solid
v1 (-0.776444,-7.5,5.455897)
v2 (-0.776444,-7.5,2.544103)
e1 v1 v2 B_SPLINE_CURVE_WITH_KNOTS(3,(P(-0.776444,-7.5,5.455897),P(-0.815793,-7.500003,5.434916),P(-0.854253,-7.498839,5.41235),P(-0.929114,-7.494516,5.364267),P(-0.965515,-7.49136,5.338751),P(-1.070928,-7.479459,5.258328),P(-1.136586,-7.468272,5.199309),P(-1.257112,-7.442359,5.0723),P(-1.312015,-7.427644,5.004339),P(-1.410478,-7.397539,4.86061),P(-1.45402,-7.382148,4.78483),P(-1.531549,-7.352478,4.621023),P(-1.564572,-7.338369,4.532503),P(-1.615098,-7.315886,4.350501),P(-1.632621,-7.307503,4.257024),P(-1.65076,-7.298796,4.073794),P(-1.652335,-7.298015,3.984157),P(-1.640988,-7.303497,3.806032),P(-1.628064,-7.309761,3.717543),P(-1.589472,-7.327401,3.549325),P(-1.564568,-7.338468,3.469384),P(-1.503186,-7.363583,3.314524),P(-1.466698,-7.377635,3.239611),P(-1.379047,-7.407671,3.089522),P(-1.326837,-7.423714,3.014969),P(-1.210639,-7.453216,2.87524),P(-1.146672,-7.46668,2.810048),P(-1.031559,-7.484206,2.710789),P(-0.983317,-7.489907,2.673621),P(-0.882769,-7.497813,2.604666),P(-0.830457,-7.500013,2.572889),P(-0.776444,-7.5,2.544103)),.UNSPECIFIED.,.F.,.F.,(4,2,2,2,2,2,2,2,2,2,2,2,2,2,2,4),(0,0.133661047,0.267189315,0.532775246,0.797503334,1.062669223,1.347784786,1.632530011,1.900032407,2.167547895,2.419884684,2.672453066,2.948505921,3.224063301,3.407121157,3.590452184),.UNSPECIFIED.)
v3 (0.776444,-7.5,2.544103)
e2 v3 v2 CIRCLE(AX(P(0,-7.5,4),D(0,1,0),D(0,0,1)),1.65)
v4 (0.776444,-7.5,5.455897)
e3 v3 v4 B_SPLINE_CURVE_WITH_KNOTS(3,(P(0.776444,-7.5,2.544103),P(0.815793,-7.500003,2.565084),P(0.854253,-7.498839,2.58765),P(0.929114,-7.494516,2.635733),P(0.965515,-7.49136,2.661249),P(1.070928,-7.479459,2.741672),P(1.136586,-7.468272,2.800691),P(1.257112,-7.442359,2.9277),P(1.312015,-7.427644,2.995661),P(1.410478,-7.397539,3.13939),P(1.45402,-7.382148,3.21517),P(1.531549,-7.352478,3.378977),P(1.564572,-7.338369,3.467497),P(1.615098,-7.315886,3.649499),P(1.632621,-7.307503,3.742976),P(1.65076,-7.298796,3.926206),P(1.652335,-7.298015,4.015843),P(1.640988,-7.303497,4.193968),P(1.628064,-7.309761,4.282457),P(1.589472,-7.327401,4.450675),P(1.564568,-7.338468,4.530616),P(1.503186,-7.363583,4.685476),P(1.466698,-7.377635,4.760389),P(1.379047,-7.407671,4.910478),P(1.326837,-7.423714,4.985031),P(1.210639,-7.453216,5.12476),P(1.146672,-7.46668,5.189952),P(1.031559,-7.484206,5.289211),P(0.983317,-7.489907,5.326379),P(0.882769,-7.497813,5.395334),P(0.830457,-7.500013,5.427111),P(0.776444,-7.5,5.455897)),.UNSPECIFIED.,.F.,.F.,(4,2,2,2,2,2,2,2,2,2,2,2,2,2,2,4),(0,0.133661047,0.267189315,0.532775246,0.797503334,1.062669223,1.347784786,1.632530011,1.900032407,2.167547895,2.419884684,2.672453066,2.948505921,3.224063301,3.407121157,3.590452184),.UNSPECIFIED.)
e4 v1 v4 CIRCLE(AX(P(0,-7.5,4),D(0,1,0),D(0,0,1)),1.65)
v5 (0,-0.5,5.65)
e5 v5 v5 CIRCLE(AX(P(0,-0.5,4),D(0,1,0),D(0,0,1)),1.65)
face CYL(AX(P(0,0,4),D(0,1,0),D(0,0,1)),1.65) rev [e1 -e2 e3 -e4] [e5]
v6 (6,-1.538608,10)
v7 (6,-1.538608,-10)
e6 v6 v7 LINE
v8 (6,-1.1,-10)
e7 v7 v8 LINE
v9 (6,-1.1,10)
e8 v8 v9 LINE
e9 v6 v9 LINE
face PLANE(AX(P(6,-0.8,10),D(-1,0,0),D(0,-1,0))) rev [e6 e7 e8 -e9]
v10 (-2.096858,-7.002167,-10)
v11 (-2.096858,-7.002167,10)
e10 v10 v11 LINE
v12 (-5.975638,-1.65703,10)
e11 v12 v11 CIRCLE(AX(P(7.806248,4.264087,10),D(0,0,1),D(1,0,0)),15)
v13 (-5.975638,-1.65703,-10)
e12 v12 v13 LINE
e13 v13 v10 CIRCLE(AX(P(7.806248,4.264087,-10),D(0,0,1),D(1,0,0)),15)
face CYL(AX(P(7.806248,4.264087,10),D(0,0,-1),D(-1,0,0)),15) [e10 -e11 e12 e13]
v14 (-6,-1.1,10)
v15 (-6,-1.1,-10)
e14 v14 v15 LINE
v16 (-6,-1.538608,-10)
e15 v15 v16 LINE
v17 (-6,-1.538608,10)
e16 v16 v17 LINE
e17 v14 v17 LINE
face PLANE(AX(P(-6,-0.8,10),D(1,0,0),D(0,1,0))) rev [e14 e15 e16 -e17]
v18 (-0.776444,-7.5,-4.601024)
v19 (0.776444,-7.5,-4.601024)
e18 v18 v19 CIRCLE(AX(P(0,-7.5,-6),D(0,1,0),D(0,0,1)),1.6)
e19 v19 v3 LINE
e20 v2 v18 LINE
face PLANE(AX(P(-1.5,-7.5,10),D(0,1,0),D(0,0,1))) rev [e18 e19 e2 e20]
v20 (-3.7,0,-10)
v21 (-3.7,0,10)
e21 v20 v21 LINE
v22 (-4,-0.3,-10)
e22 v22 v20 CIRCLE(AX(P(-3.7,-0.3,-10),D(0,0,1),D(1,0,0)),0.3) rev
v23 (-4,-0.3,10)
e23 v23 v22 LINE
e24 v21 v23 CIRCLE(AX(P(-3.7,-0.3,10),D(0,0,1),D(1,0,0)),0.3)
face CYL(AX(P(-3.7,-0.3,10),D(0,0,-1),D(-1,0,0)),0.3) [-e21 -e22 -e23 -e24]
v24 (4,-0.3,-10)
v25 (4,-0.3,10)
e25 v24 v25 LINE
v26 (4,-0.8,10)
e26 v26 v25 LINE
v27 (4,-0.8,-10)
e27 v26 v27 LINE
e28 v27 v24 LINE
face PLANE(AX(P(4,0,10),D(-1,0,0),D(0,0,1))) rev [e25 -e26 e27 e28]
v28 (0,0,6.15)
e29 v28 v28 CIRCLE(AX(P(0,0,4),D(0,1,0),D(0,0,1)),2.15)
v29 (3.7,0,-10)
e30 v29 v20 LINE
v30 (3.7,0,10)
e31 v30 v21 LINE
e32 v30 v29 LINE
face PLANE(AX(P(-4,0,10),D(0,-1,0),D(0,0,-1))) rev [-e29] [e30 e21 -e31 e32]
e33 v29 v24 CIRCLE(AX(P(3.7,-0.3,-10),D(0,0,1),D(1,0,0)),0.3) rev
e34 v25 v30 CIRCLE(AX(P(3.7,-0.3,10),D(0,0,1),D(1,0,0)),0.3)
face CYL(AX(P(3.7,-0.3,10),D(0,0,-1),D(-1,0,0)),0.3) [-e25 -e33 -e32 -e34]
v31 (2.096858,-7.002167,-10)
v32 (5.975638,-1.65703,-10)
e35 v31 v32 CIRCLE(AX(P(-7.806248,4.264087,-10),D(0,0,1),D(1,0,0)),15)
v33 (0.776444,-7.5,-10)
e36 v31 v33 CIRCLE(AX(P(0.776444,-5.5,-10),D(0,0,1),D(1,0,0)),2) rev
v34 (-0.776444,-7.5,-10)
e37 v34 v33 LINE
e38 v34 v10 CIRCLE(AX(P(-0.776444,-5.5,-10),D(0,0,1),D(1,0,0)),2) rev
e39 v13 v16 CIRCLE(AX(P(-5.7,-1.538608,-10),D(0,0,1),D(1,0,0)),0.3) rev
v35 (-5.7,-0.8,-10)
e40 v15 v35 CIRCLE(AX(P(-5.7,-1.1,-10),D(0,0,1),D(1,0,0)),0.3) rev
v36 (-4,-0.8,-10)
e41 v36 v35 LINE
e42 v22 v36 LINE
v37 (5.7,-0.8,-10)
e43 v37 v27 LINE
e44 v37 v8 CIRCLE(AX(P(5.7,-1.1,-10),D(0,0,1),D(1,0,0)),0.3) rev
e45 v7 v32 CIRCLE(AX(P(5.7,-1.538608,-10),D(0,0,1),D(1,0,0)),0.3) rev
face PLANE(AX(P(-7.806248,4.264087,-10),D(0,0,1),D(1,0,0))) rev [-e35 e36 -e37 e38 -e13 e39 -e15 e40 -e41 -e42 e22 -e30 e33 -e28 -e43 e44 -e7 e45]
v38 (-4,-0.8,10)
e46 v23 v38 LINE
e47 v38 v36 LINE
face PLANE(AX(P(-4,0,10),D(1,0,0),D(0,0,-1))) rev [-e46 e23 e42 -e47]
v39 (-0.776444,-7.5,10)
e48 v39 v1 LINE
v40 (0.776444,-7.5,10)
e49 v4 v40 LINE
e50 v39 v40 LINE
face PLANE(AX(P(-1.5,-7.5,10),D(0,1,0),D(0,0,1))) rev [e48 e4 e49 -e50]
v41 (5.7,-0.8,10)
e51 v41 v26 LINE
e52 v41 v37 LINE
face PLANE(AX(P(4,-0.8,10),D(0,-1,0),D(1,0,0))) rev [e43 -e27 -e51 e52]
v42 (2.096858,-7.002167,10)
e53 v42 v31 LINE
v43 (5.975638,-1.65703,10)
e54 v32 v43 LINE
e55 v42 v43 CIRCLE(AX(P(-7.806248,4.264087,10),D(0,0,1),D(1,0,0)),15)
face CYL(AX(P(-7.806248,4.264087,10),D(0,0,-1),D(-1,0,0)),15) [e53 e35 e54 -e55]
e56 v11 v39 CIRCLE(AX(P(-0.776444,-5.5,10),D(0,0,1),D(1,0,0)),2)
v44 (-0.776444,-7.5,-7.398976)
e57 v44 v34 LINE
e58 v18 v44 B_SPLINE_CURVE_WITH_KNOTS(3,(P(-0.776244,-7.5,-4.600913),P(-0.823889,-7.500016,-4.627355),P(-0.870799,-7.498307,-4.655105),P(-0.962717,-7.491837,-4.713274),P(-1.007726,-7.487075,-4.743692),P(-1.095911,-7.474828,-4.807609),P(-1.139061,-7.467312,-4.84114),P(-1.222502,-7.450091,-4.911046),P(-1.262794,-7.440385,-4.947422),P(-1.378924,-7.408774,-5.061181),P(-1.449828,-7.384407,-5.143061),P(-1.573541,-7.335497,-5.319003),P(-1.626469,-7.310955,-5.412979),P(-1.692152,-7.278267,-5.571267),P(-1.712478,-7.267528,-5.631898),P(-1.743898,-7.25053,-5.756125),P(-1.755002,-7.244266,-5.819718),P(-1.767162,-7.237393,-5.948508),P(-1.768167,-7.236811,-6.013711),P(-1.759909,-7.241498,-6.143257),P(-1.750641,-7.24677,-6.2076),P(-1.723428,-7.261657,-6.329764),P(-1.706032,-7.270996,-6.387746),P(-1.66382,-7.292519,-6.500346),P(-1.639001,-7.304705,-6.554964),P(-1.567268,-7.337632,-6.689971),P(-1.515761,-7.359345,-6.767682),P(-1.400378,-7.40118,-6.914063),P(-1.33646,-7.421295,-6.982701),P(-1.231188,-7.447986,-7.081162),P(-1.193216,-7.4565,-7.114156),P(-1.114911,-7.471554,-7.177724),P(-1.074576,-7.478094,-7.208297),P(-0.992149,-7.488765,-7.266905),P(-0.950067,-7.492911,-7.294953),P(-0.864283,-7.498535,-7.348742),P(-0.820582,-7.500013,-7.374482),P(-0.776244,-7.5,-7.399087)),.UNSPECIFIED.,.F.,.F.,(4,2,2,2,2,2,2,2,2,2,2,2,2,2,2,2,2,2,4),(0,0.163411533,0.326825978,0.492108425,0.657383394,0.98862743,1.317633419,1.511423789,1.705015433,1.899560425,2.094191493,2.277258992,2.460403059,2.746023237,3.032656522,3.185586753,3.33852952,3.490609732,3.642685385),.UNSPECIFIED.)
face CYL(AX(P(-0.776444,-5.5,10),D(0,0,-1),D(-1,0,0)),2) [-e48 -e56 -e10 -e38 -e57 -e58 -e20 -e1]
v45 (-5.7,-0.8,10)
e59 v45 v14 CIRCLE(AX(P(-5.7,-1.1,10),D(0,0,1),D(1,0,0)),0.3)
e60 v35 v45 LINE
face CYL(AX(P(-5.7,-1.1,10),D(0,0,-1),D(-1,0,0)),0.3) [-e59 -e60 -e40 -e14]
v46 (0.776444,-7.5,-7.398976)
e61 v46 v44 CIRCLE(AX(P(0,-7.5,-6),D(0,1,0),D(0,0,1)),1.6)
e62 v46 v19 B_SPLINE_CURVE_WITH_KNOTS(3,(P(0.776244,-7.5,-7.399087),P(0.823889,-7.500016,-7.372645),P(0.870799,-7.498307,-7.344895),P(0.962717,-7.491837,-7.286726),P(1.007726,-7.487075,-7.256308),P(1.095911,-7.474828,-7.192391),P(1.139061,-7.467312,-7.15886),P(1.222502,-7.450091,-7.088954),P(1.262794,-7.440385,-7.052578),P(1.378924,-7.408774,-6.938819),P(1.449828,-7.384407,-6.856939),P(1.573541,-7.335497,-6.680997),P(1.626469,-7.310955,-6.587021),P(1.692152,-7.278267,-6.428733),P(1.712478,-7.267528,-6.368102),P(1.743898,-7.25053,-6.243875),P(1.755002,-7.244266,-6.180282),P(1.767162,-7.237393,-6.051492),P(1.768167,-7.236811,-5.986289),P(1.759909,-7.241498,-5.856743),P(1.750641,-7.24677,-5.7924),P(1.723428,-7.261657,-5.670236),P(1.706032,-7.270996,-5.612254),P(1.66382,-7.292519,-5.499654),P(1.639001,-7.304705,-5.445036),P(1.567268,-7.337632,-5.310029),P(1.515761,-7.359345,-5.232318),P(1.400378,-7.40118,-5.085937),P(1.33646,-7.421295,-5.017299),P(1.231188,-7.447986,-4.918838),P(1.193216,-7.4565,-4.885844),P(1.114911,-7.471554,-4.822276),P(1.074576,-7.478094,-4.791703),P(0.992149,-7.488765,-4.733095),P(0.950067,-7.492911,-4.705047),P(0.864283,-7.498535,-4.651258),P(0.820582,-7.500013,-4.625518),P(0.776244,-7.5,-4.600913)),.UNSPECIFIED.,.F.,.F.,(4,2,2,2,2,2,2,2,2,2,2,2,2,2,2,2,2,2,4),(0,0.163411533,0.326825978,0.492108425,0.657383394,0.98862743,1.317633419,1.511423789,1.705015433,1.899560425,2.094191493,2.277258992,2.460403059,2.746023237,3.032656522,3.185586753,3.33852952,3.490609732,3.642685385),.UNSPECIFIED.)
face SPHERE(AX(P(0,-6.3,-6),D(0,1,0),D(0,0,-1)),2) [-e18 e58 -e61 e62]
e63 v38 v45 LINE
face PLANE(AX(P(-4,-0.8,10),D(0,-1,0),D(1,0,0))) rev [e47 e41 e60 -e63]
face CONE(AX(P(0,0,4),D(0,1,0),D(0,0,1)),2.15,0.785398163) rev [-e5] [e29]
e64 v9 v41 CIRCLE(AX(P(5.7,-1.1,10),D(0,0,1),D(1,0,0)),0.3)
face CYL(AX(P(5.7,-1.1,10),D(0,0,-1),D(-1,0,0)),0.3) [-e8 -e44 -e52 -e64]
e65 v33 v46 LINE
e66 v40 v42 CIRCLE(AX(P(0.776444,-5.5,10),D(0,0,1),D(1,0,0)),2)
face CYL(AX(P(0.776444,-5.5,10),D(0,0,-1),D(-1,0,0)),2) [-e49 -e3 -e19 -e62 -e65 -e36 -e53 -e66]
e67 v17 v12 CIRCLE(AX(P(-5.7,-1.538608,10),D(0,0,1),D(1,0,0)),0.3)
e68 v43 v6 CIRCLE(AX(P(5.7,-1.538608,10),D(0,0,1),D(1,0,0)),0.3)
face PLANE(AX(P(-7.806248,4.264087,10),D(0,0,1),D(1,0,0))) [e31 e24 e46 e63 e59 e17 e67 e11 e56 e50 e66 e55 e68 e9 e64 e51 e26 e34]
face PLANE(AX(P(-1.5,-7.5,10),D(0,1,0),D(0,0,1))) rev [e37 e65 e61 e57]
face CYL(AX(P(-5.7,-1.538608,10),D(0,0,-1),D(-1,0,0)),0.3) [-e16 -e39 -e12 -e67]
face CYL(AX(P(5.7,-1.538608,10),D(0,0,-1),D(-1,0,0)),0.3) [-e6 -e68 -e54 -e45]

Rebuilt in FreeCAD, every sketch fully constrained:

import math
import FreeCAD as App
import Part
import Sketcher


def edges_at(feature, points):
    """Names of the edges that pass closest to the given points."""
    edges = feature.Shape.Edges
    near = lambda p: min(range(len(edges)), key=lambda i: edges[i].distToShape(Part.Vertex(*p))[0])
    return sorted({f"Edge{near(p) + 1}" for p in points})

doc = App.newDocument("Part")
body = doc.addObject("PartDesign::Body", "Body")

sketch1 = body.newObject("Sketcher::SketchObject", "Sketch")
sketch1.AttachmentSupport = (doc.getObject("XY_Plane"), [""])
sketch1.MapMode = "FlatFace"
sketch1.addGeometry([
    Part.LineSegment(App.Vector(4, 0, 0), App.Vector(-4, 0, 0)),
    Part.LineSegment(App.Vector(-4, 0, 0), App.Vector(-4, -0.8, 0)),
    Part.LineSegment(App.Vector(-4, -0.8, 0), App.Vector(-6, -0.8, 0)),
    Part.LineSegment(App.Vector(-6, -0.8, 0), App.Vector(-6, -1.6, 0)),
    Part.ArcOfCircle(Part.Circle(App.Vector(7.8, 4.3, 0), App.Vector(0, 0, 1), 15), math.radians(-157), math.radians(-128)),
    Part.LineSegment(App.Vector(-1.5, -7.5, 0), App.Vector(1.5, -7.5, 0)),
    Part.ArcOfCircle(Part.Circle(App.Vector(-7.8, 4.3, 0), App.Vector(0, 0, 1), 15), math.radians(-52), math.radians(-23)),
    Part.LineSegment(App.Vector(6, -1.6, 0), App.Vector(6, -0.8, 0)),
    Part.LineSegment(App.Vector(6, -0.8, 0), App.Vector(4, -0.8, 0)),
    Part.LineSegment(App.Vector(4, -0.8, 0), App.Vector(4, 0, 0)),
], False)
sketch1.addConstraint([
    Sketcher.Constraint("Coincident", 0, 2, 1, 1),
    Sketcher.Constraint("Coincident", 1, 2, 2, 1),
    Sketcher.Constraint("Coincident", 2, 2, 3, 1),
    Sketcher.Constraint("Coincident", 3, 2, 4, 1),
    Sketcher.Constraint("Coincident", 4, 2, 5, 1),
    Sketcher.Constraint("Coincident", 5, 2, 6, 1),
    Sketcher.Constraint("Coincident", 6, 2, 7, 1),
    Sketcher.Constraint("Coincident", 7, 2, 8, 1),
    Sketcher.Constraint("Coincident", 8, 2, 9, 1),
    Sketcher.Constraint("Coincident", 9, 2, 0, 1),
    Sketcher.Constraint("Horizontal", 0),
    Sketcher.Constraint("Vertical", 1),
    Sketcher.Constraint("Horizontal", 2),
    Sketcher.Constraint("Vertical", 3),
    Sketcher.Constraint("Horizontal", 5),
    Sketcher.Constraint("Vertical", 7),
    Sketcher.Constraint("Horizontal", 8),
    Sketcher.Constraint("Vertical", 9),
    Sketcher.Constraint("Equal", 4, 6),
    Sketcher.Constraint("Symmetric", 0, 2, 9, 2, -1, 1),
    Sketcher.Constraint("Symmetric", 4, 3, 6, 3, -2),
    Sketcher.Constraint("Symmetric", 2, 2, 7, 2, -2),
    Sketcher.Constraint("Equal", 1, 3),
    Sketcher.Constraint("Radius", 4, 15.0),
    Sketcher.Constraint("DistanceX", 0, 2, 0, 1, 8.0),
    Sketcher.Constraint("DistanceX", 2, 2, 2, 1, 2.0),
    Sketcher.Constraint("DistanceX", 5, 1, 5, 2, 3.0),
    Sketcher.Constraint("DistanceY", 1, 2, 1, 1, 0.8),
    Sketcher.Constraint("DistanceY", 4, 2, -1, 1, 7.5),
])
pad1 = body.newObject("PartDesign::Pad", "Pad")
pad1.Profile = sketch1
pad1.Length = 20
pad1.Midplane = True
doc.recompute()

fillet = body.newObject("PartDesign::Fillet", "Fillet")
fillet.Base = (pad1, edges_at(pad1, [
    (6, -0.8, 0),
    (6, -1.6, 0),
    (-6, -1.6, 0),
    (-6, -0.8, 0),
    (-4, 0, 0),
    (4, 0, 0),
]))
fillet.Radius = 0.3
doc.recompute()

fillet2 = body.newObject("PartDesign::Fillet", "Fillet001")
fillet2.Base = (fillet, edges_at(fillet, [(1.5, -7.5, 0), (-1.5, -7.5, 0)]))
fillet2.Radius = 2

sketch2 = body.newObject("Sketcher::SketchObject", "Sketch001")
sketch2.AttachmentSupport = (doc.getObject("XZ_Plane"), [""])
sketch2.MapMode = "FlatFace"
sketch2.addGeometry(Part.Circle(App.Vector(0, 4, 0), App.Vector(0, 0, 1), 1.6), False)
sketch2.addConstraint([
    Sketcher.Constraint("PointOnObject", 0, 3, -2),
    Sketcher.Constraint("Diameter", 0, 3.3),
    Sketcher.Constraint("DistanceY", -1, 1, 0, 3, 4.0),
])
doc.recompute()
hole = body.newObject("PartDesign::Hole", "Hole")
hole.Profile = sketch2
hole.ThreadType = "None"
hole.Diameter = 3.3
hole.DepthType = "ThroughAll"
hole.HoleCutType = "Countersink"
hole.HoleCutDiameter = 4.3
hole.HoleCutCountersinkAngle = 90
hole.Reversed = True

sketch3 = body.newObject("Sketcher::SketchObject", "Sketch002")
sketch3.AttachmentSupport = (doc.getObject("YZ_Plane"), [""])
sketch3.MapMode = "FlatFace"
sketch3.addGeometry([
    Part.LineSegment(App.Vector(-8.3, -6, 0), App.Vector(-4.3, -6, 0)),
    Part.ArcOfCircle(Part.Circle(App.Vector(-6.3, -6, 0), App.Vector(0, 0, 1), 2), math.radians(0), math.radians(180)),
], False)
sketch3.addGeometry(Part.LineSegment(App.Vector(-4.3, -6, 0), App.Vector(-8.3, -6, 0)), True)
sketch3.addConstraint([
    Sketcher.Constraint("Coincident", 0, 1, 1, 2),
    Sketcher.Constraint("Coincident", 1, 1, 0, 2),
    Sketcher.Constraint("Horizontal", 0),
    Sketcher.Constraint("Horizontal", 2),
    Sketcher.Constraint("Coincident", 2, 1, 1, 1),
    Sketcher.Constraint("Horizontal", 1, 3, 0, 1),
    Sketcher.Constraint("Equal", 0, 2),
    Sketcher.Constraint("Radius", 1, 2.0),
    Sketcher.Constraint("DistanceY", 1, 3, -1, 1, 6.0),
    Sketcher.Constraint("DistanceX", 1, 3, -1, 1, 6.3),
])
revolution = body.newObject("PartDesign::Revolution", "Revolution")
revolution.Profile = sketch3
revolution.ReferenceAxis = (sketch3, ["Axis0"])
revolution.Angle = 360

doc.recompute()
